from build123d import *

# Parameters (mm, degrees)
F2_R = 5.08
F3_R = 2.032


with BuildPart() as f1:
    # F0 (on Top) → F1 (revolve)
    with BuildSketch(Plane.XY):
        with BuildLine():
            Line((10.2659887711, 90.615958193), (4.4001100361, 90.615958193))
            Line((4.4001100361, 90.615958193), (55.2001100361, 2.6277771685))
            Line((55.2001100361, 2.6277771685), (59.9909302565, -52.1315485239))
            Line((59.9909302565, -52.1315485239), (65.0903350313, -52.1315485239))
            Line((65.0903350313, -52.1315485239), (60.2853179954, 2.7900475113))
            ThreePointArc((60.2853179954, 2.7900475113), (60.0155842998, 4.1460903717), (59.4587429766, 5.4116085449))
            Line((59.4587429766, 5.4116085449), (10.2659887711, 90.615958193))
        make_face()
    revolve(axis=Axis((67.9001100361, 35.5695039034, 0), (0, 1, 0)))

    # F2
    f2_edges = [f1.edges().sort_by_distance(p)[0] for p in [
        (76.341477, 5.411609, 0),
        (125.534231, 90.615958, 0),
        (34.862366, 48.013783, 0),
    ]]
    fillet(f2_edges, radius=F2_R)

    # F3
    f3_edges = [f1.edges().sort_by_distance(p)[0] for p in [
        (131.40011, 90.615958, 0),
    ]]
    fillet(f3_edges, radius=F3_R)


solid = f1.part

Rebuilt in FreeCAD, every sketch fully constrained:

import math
import FreeCAD as App
import Part
import Sketcher

V = App.Vector
Q = App.Units.Quantity


def edges_at(feature, points):
    """Names of the edges that pass closest to the given points."""
    edges = feature.Shape.Edges
    near = lambda p: min(range(len(edges)), key=lambda i: edges[i].distToShape(Part.Vertex(*p))[0])
    return sorted({f"Edge{near(p) + 1}" for p in points})

doc = App.newDocument("Part")
body = doc.addObject("PartDesign::Body", "Body")

# Sketch on XY plane
sketch1 = body.newObject("Sketcher::SketchObject", "Sketch")
sketch1.AttachmentSupport = (doc.getObject("XY_Plane"), [""])
sketch1.MapMode = "FlatFace"
sketch1.addGeometry([
    Part.LineSegment(V(10.3, 90.6, 0), V(4.4, 90.6, 0)),  # 0
    Part.LineSegment(V(4.4, 90.6, 0), V(55.2, 2.6, 0)),  # 1
    Part.LineSegment(V(55.2, 2.6, 0), V(60, -52.1, 0)),  # 2
    Part.LineSegment(V(60, -52.1, 0), V(65.1, -52.1, 0)),  # 3
    Part.LineSegment(V(65.1, -52.1, 0), V(60.3, 2.8, 0)),  # 4
    Part.ArcOfCircle(Part.Circle(V(54, 2.2, 0), V(0, 0, 1), 6.3), math.radians(5), math.radians(30)),  # 5
    Part.LineSegment(V(59.5, 5.4, 0), V(10.3, 90.6, 0)),  # 6
], False)
sketch1.addGeometry(Part.LineSegment(V(67.9, -52.1, 0), V(67.9, 90.6, 0)), True)  # axis
sketch1.addConstraint([
    Sketcher.Constraint("Coincident", 0, 2, 1, 1),
    Sketcher.Constraint("Coincident", 1, 2, 2, 1),
    Sketcher.Constraint("Coincident", 2, 2, 3, 1),
    Sketcher.Constraint("Coincident", 3, 2, 4, 1),
    Sketcher.Constraint("Tangent", 4, 2, 5, 1),
    Sketcher.Constraint("Tangent", 5, 2, 6, 1),
    Sketcher.Constraint("Coincident", 6, 2, 0, 1),
    Sketcher.Constraint("Horizontal", 0),
    Sketcher.Constraint("Horizontal", 3),
    Sketcher.Constraint("Vertical", 7),
    Sketcher.Constraint("Parallel", 2, 4),
    Sketcher.Constraint("Parallel", 1, 6),
    Sketcher.Constraint("Horizontal", 3, 2, 7, 1),
    Sketcher.Constraint("Horizontal", 6, 2, 7, 2),
    Sketcher.Constraint("Radius", 5, Q("0.25 in")),
    Sketcher.Constraint("Distance", 1, Q("4 in")),
    Sketcher.Constraint("Angle", 1, Q("-60 deg")),
    Sketcher.Constraint("Angle", 2, Q("-85 deg")),
    Sketcher.Constraint("DistanceX", 1, 2, 7, 1, Q("0.5 in")),
    Sketcher.Constraint("DistanceX", 0, 2, 0, 1, Q("5.865879 mm")),
    Sketcher.Constraint("Distance", 6, Q("98.385508 mm")),
    Sketcher.Constraint("DistanceY", 7, 1, 7, 2, Q("142.747507 mm")),
    Sketcher.Constraint("DistanceX", -1, 1, 5, 3, Q("53.959482 mm")),
    Sketcher.Constraint("DistanceY", -1, 1, 5, 3, Q("2.236609 mm")),
])
revolution = body.newObject("PartDesign::Revolution", "Revolution")
revolution.Profile = sketch1
revolution.ReferenceAxis = (sketch1, ["Axis0"])
revolution.Angle = 360
doc.recompute()

fillet = body.newObject("PartDesign::Fillet", "Fillet")
fillet.Base = (revolution, edges_at(revolution, [(76.341, 5.412, 0), (125.534, 90.616, 0), (34.862, 48.014, 0)]))
fillet.Radius = Q("0.2 in")
doc.recompute()

fillet2 = body.newObject("PartDesign::Fillet", "Fillet001")
fillet2.Base = (fillet, edges_at(fillet, [(131.4, 90.616, 0)]))
fillet2.Radius = Q("0.08 in")

doc.recompute()
